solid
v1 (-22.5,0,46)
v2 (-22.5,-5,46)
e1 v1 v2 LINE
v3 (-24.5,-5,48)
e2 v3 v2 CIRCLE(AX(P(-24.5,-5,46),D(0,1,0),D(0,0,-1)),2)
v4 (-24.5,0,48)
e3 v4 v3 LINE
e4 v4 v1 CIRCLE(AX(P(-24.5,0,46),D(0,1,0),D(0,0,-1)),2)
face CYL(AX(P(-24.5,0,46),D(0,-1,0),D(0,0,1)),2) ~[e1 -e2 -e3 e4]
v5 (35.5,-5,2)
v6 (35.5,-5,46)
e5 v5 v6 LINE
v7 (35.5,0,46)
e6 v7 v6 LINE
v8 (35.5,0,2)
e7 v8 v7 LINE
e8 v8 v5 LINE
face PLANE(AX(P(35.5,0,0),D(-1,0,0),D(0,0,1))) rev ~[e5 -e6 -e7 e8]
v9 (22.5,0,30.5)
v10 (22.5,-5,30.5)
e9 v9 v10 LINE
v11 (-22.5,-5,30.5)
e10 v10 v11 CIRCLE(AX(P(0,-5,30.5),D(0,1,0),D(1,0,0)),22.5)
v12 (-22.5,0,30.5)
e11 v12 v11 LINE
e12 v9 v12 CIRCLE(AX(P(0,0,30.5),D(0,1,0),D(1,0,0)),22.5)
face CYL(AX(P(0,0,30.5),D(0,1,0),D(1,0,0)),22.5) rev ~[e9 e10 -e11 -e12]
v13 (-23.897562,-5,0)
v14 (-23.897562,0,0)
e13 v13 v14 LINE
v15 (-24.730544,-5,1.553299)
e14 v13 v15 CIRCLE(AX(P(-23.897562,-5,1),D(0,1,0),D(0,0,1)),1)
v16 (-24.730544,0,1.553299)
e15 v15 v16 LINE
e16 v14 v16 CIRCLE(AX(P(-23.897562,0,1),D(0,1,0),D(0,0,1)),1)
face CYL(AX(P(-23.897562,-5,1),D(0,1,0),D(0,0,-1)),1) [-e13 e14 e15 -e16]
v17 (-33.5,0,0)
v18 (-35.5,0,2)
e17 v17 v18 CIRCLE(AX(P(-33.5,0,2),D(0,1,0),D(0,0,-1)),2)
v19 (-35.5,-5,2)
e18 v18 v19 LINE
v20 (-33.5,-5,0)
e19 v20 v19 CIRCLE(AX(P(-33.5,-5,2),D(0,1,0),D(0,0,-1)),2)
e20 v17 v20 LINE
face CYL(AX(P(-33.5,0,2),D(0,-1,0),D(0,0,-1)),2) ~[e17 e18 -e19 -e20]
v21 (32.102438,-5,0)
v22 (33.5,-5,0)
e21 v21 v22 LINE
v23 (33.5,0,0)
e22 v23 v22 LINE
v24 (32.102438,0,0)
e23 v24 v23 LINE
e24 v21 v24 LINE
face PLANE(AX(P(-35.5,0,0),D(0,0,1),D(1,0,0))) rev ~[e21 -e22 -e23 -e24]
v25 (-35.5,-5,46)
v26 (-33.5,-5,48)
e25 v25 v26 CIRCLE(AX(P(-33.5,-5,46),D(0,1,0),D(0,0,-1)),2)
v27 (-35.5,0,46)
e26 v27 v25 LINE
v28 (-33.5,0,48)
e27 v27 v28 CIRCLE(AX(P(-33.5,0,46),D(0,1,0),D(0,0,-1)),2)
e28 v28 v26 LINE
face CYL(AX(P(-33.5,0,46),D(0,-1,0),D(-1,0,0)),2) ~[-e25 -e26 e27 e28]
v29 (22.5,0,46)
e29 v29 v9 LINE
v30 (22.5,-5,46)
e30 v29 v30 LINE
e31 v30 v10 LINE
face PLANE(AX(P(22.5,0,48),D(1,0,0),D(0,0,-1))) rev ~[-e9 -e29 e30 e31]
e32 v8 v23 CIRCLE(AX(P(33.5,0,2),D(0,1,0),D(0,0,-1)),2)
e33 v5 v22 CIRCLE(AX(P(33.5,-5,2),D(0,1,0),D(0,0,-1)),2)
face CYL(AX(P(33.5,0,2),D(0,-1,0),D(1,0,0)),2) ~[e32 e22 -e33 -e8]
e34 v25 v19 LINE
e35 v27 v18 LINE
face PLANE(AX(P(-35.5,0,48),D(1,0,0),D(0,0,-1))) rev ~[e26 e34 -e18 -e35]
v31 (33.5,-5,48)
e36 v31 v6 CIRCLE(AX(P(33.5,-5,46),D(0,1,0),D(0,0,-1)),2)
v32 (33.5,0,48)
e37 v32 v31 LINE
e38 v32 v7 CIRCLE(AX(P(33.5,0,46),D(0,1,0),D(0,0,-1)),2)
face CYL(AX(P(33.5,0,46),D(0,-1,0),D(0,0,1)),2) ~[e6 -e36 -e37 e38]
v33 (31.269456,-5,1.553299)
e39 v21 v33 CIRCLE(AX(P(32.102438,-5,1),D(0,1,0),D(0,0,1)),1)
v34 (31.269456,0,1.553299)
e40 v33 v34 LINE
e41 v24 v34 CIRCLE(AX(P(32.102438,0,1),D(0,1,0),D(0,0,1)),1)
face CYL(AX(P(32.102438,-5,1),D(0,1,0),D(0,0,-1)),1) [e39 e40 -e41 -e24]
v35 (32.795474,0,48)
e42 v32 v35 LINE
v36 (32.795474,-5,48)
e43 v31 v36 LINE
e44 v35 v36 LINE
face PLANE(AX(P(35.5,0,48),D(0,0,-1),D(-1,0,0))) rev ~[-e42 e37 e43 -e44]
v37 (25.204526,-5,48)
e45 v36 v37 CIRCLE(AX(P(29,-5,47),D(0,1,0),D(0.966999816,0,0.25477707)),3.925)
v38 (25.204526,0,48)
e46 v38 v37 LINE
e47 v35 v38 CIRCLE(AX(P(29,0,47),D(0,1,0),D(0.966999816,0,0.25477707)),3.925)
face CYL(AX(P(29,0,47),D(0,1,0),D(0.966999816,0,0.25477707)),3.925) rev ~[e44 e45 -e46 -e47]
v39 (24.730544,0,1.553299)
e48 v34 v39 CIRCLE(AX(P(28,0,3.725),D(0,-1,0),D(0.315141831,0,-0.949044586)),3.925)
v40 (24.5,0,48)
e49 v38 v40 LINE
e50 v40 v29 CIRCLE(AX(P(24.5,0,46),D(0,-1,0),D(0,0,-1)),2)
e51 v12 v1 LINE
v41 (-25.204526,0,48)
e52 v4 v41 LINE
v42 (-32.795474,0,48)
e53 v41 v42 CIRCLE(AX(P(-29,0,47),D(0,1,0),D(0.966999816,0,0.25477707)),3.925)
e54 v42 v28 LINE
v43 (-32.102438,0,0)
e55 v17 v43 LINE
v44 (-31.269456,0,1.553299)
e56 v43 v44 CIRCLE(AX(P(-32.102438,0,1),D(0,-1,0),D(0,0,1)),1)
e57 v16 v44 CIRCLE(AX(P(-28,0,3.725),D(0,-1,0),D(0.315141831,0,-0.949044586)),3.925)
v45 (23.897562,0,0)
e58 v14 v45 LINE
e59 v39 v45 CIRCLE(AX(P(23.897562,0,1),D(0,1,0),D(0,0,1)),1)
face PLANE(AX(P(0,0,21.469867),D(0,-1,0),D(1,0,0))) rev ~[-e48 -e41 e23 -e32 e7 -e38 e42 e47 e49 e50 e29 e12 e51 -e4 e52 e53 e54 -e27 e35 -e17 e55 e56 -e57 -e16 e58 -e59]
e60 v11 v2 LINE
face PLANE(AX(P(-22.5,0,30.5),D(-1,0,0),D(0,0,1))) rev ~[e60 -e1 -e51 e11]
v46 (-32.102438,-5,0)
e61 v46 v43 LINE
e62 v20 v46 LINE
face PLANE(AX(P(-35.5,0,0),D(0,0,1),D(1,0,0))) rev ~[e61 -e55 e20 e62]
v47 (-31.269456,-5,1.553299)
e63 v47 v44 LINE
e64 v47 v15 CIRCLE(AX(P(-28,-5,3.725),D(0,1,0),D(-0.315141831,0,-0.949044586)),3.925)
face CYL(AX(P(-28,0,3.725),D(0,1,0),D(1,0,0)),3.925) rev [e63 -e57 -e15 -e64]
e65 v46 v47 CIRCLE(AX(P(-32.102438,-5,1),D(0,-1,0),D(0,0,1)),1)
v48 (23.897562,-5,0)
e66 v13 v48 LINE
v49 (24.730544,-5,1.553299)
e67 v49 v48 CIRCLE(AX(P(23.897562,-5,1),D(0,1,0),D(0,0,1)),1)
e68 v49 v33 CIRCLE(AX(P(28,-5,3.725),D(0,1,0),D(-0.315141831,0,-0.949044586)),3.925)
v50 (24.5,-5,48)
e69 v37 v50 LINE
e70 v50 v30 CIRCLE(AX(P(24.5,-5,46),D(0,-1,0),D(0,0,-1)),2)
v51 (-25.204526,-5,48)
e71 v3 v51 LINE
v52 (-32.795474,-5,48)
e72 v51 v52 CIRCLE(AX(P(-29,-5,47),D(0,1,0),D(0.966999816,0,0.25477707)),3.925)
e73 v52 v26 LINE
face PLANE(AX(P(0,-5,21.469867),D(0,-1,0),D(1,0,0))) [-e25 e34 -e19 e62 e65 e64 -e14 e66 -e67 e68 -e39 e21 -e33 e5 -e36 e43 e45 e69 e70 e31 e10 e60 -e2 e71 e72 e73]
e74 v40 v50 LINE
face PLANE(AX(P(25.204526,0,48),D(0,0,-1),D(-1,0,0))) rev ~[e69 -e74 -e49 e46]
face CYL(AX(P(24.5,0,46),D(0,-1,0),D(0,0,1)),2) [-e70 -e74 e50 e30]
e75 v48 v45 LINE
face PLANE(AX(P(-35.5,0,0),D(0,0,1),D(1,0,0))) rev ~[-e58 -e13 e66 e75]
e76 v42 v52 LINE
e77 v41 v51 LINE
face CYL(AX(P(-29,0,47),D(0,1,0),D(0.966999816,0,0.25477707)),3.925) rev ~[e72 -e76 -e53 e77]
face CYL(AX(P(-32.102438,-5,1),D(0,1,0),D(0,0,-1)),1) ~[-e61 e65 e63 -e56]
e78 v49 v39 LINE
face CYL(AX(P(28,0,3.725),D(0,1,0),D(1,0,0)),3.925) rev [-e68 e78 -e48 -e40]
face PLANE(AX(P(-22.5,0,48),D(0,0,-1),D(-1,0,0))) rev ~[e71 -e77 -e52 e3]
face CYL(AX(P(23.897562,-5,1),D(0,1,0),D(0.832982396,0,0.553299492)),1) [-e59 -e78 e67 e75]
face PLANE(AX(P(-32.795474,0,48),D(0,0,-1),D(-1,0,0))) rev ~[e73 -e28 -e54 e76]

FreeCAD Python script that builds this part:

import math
import FreeCAD as App
import Part
import Sketcher
Q = App.Units.Quantity


def edges_at(feature, points):
    """Names of the edges that pass closest to the given points."""
    edges = feature.Shape.Edges
    near = lambda p: min(range(len(edges)), key=lambda i: edges[i].distToShape(Part.Vertex(*p))[0])
    return sorted({f"Edge{near(p) + 1}" for p in points})

doc = App.newDocument("Part")
body = doc.addObject("PartDesign::Body", "Body")

# Sketch on XZ plane
sketch1 = body.newObject("Sketcher::SketchObject", "Sketch")
sketch1.AttachmentSupport = (doc.getObject("XZ_Plane"), [""])
sketch1.MapMode = "FlatFace"
sketch1.addGeometry([
    Part.ArcOfCircle(Part.Circle(App.Vector(0, 30.5, 0), App.Vector(0, 0, 1), 22.5), math.radians(180), math.radians(360)),  # 0
    Part.LineSegment(App.Vector(-22.5, 30.5, 0), App.Vector(-22.5, 48, 0)),  # 1
    Part.LineSegment(App.Vector(-22.5, 48, 0), App.Vector(-25.204526, 48, 0)),  # 2
    Part.ArcOfCircle(Part.Circle(App.Vector(-29, 47, 0), App.Vector(0, 0, 1), 3.925), math.radians(165.239624), math.radians(374.760376)),  # 3
    Part.LineSegment(App.Vector(-32.795474, 48, 0), App.Vector(-35.5, 48, 0)),  # 4
    Part.LineSegment(App.Vector(-35.5, 48, 0), App.Vector(-35.5, 0, 0)),  # 5
    Part.LineSegment(App.Vector(-35.5, 0, 0), App.Vector(35.5, 0, 0)),  # 6
    Part.LineSegment(App.Vector(35.5, 0, 0), App.Vector(35.5, 48, 0)),  # 7
    Part.LineSegment(App.Vector(35.5, 48, 0), App.Vector(32.795474, 48, 0)),  # 8
    Part.ArcOfCircle(Part.Circle(App.Vector(29, 47, 0), App.Vector(0, 0, 1), 3.925), math.radians(165.239624), math.radians(374.760376)),  # 9
    Part.LineSegment(App.Vector(25.204526, 48, 0), App.Vector(22.5, 48, 0)),  # 10
    Part.LineSegment(App.Vector(22.5, 48, 0), App.Vector(22.5, 30.5, 0)),  # 11
], False)
sketch1.addConstraint([
    Sketcher.Constraint("Tangent", 0, 1, 1, 1),
    Sketcher.Constraint("Coincident", 1, 2, 2, 1),
    Sketcher.Constraint("Coincident", 2, 2, 3, 2),
    Sketcher.Constraint("Coincident", 3, 1, 4, 1),
    Sketcher.Constraint("Coincident", 4, 2, 5, 1),
    Sketcher.Constraint("Coincident", 5, 2, 6, 1),
    Sketcher.Constraint("Coincident", 6, 2, 7, 1),
    Sketcher.Constraint("Coincident", 7, 2, 8, 1),
    Sketcher.Constraint("Coincident", 8, 2, 9, 2),
    Sketcher.Constraint("Coincident", 9, 1, 10, 1),
    Sketcher.Constraint("Coincident", 10, 2, 11, 1),
    Sketcher.Constraint("Tangent", 11, 2, 0, 2),
    Sketcher.Constraint("Vertical", 1),
    Sketcher.Constraint("Horizontal", 2),
    Sketcher.Constraint("Horizontal", 4),
    Sketcher.Constraint("Vertical", 5),
    Sketcher.Constraint("Horizontal", 6),
    Sketcher.Constraint("Vertical", 7),
    Sketcher.Constraint("Horizontal", 8),
    Sketcher.Constraint("Horizontal", 10),
    Sketcher.Constraint("Vertical", 11),
    Sketcher.Constraint("Equal", 3, 9),
    Sketcher.Constraint("Symmetric", 5, 2, 6, 2, -1, 1),
    Sketcher.Constraint("Symmetric", 3, 3, 9, 3, -2),
    Sketcher.Constraint("Symmetric", 1, 2, 10, 2, -2),
    Sketcher.Constraint("Horizontal", 2, 2, 3, 1),
    Sketcher.Constraint("Horizontal", 4, 2, 7, 2),
    Sketcher.Constraint("Equal", 2, 4),
    Sketcher.Constraint("Radius", 0, Q("22.5 mm")),
    Sketcher.Constraint("DistanceX", 6, 1, 6, 2, Q("71 mm")),
    Sketcher.Constraint("DistanceY", 5, 2, 5, 1, Q("48 mm")),
    Sketcher.Constraint("DistanceY", 1, 1, 1, 2, Q("17.5 mm")),
    Sketcher.Constraint("DistanceY", -1, 1, 3, 3, Q("47 mm")),
    Sketcher.Constraint("Radius", 3, Q("3.925 mm")),
])
pad1 = body.newObject("PartDesign::Pad", "Pad")
pad1.Profile = sketch1
pad1.Length = 5

# Sketch on XZ plane
sketch2 = body.newObject("Sketcher::SketchObject", "Sketch001")
sketch2.AttachmentSupport = (doc.getObject("XZ_Plane"), [""])
sketch2.MapMode = "FlatFace"
sketch2.addGeometry([
    Part.Circle(App.Vector(-28, 3.725, 0), App.Vector(0, 0, 1), 3.925),
    Part.Circle(App.Vector(28, 3.725, 0), App.Vector(0, 0, 1), 3.925),
], False)
sketch2.addConstraint([
    Sketcher.Constraint("Equal", 0, 1),
    Sketcher.Constraint("Symmetric", 0, 3, 1, 3, -2),
    Sketcher.Constraint("Diameter", 0, Q("7.85 mm")),
    Sketcher.Constraint("DistanceX", 0, 3, -1, 1, Q("28 mm")),
    Sketcher.Constraint("DistanceY", -1, 1, 0, 3, Q("3.725 mm")),
])
pocket1 = body.newObject("PartDesign::Pocket", "Pocket")
pocket1.Profile = sketch2
pocket1.Type = "ThroughAll"
pocket1.Reversed = True
doc.recompute()

fillet = body.newObject("PartDesign::Fillet", "Fillet")
fillet.Base = (pocket1, edges_at(pocket1, [
    (-22.5, -2.5, 48),
    (22.5, -2.5, 48),
    (-35.5, -2.5, 48),
    (35.5, -2.5, 48),
    (35.5, -2.5, 0),
    (-35.5, -2.5, 0),
]))
fillet.Radius = 2
doc.recompute()

fillet2 = body.newObject("PartDesign::Fillet", "Fillet001")
fillet2.Base = (fillet, edges_at(fillet, [
    (-26.763, -2.5, 0),
    (-29.237, -2.5, 0),
    (29.237, -2.5, 0),
    (26.763, -2.5, 0),
]))
fillet2.Radius = 1

doc.recompute()
